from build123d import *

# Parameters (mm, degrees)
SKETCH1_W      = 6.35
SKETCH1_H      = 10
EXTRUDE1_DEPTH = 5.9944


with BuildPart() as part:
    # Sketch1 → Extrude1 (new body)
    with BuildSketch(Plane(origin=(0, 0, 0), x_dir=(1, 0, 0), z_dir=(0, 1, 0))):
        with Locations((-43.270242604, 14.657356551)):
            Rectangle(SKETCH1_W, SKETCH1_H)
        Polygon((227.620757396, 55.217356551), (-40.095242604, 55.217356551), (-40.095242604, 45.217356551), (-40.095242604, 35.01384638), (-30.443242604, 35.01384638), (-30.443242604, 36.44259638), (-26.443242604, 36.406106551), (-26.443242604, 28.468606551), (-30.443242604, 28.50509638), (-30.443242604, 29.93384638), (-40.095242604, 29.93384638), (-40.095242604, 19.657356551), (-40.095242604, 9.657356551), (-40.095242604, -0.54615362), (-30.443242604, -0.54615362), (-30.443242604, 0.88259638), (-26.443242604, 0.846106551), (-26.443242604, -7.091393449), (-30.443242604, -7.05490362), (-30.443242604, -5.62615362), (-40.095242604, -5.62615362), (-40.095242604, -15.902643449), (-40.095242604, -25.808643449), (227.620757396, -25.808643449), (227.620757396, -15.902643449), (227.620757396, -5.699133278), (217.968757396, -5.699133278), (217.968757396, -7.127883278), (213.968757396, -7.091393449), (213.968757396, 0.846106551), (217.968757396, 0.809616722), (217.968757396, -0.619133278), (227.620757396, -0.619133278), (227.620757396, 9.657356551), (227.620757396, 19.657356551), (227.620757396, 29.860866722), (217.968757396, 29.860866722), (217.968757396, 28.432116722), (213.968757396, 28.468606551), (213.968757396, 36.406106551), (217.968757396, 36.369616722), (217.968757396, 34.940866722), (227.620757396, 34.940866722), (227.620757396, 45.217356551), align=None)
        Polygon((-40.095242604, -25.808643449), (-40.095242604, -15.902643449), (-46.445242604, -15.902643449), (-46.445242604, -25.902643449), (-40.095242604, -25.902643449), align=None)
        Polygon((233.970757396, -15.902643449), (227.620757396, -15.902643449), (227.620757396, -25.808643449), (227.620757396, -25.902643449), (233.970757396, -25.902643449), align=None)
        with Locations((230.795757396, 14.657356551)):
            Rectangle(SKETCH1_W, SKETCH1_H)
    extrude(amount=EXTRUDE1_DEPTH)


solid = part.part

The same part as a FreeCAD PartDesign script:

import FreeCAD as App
import Part
import Sketcher

V = App.Vector
Q = App.Units.Quantity


def add_polygon(sketch, points):
    """Adds a closed chain of lines whose ends are joined by coincident constraints."""
    first, n = sketch.GeometryCount, len(points)
    for a, b in zip(points, points[1:] + points[:1]):
        sketch.addGeometry(Part.LineSegment(App.Vector(*a, 0), App.Vector(*b, 0)), False)
    for i in range(n):
        sketch.addConstraint(Sketcher.Constraint("Coincident", first + i, 2, first + (i + 1) % n, 1))

doc = App.newDocument("Part")
params = doc.addObject("Spreadsheet::Sheet", "Params")
for row, (alias, value) in enumerate([
    ("sketch1_width", "0.25 in"),
    ("sketch1_width2", "0.38 in"),
    ("sketch1_width3", "10.54 in"),
    ("sketch1_height", "0.3125 in"),
    ("pad1_length", "0.236 in"),
], start=1):
    params.set(f"A{row}", alias)
    params.set(f"B{row}", "=" + value)
    params.setAlias(f"B{row}", alias)

body = doc.addObject("PartDesign::Body", "Body")

sketch1 = doc.addObject("Sketcher::SketchObject", "Sketch")
body.addObject(sketch1)
sketch1.AttachmentSupport = (doc.XZ_Plane, [""])
sketch1.MapMode = "FlatFace"
add_polygon(sketch1, [(-46.45, -19.66), (-46.45, -9.66), (-40.1, -9.66), (-40.1, 0.55), (-30.44, 0.55), (-30.44, -0.88), (-26.44, -0.85), (-26.44, 7.09), (-30.44, 7.05), (-30.44, 5.63), (-40.1, 5.63), (-40.1, 15.9), (-46.45, 15.9), (-46.45, 25.9), (-40.1, 25.9), (-40.1, 25.81), (227.62, 25.81), (227.62, 25.9), (233.97, 25.9), (233.97, 15.9), (227.62, 15.9), (227.62, 5.7), (217.97, 5.7), (217.97, 7.13), (213.97, 7.09), (213.97, -0.85), (217.97, -0.81), (217.97, 0.62), (227.62, 0.62), (227.62, -9.66), (233.97, -9.66), (233.97, -19.66), (227.62, -19.66), (227.62, -29.86), (217.97, -29.86), (217.97, -28.43), (213.97, -28.47), (213.97, -36.41), (217.97, -36.37), (217.97, -34.94), (227.62, -34.94), (227.62, -55.22), (-40.1, -55.22), (-40.1, -35.01), (-30.44, -35.01), (-30.44, -36.44), (-26.44, -36.41), (-26.44, -28.47), (-30.44, -28.51), (-30.44, -29.93), (-40.1, -29.93), (-40.1, -19.66)])
sketch1.addConstraint(Sketcher.Constraint("Vertical", 0))
sketch1.addConstraint(Sketcher.Constraint("Horizontal", 1))
sketch1.addConstraint(Sketcher.Constraint("Vertical", 2))
sketch1.addConstraint(Sketcher.Constraint("Horizontal", 3))
sketch1.addConstraint(Sketcher.Constraint("Vertical", 4))
sketch1.addConstraint(Sketcher.Constraint("Vertical", 6))
sketch1.addConstraint(Sketcher.Constraint("Vertical", 8))
sketch1.addConstraint(Sketcher.Constraint("Horizontal", 9))
sketch1.addConstraint(Sketcher.Constraint("Vertical", 10))
sketch1.addConstraint(Sketcher.Constraint("Horizontal", 11))
sketch1.addConstraint(Sketcher.Constraint("Vertical", 12))
sketch1.addConstraint(Sketcher.Constraint("Horizontal", 13))
sketch1.addConstraint(Sketcher.Constraint("Vertical", 14))
sketch1.addConstraint(Sketcher.Constraint("Horizontal", 15))
sketch1.addConstraint(Sketcher.Constraint("Vertical", 16))
sketch1.addConstraint(Sketcher.Constraint("Horizontal", 17))
sketch1.addConstraint(Sketcher.Constraint("Vertical", 18))
sketch1.addConstraint(Sketcher.Constraint("Horizontal", 19))
sketch1.addConstraint(Sketcher.Constraint("Vertical", 20))
sketch1.addConstraint(Sketcher.Constraint("Horizontal", 21))
sketch1.addConstraint(Sketcher.Constraint("Vertical", 22))
sketch1.addConstraint(Sketcher.Constraint("Vertical", 24))
sketch1.addConstraint(Sketcher.Constraint("Vertical", 26))
sketch1.addConstraint(Sketcher.Constraint("Horizontal", 27))
sketch1.addConstraint(Sketcher.Constraint("Vertical", 28))
sketch1.addConstraint(Sketcher.Constraint("Horizontal", 29))
sketch1.addConstraint(Sketcher.Constraint("Vertical", 30))
sketch1.addConstraint(Sketcher.Constraint("Horizontal", 31))
sketch1.addConstraint(Sketcher.Constraint("Vertical", 32))
sketch1.addConstraint(Sketcher.Constraint("Horizontal", 33))
sketch1.addConstraint(Sketcher.Constraint("Vertical", 34))
sketch1.addConstraint(Sketcher.Constraint("Vertical", 36))
sketch1.addConstraint(Sketcher.Constraint("Vertical", 38))
sketch1.addConstraint(Sketcher.Constraint("Horizontal", 39))
sketch1.addConstraint(Sketcher.Constraint("Vertical", 40))
sketch1.addConstraint(Sketcher.Constraint("Horizontal", 41))
sketch1.addConstraint(Sketcher.Constraint("Vertical", 42))
sketch1.addConstraint(Sketcher.Constraint("Horizontal", 43))
sketch1.addConstraint(Sketcher.Constraint("Vertical", 44))
sketch1.addConstraint(Sketcher.Constraint("Vertical", 46))
sketch1.addConstraint(Sketcher.Constraint("Vertical", 48))
sketch1.addConstraint(Sketcher.Constraint("Horizontal", 49))
sketch1.addConstraint(Sketcher.Constraint("Vertical", 50))
sketch1.addConstraint(Sketcher.Constraint("Horizontal", 51))
sketch1.addConstraint(Sketcher.Constraint("Parallel", 5, 7))
sketch1.addConstraint(Sketcher.Constraint("Parallel", 7, 23))
sketch1.addConstraint(Sketcher.Constraint("Parallel", 23, 25))
sketch1.addConstraint(Sketcher.Constraint("Parallel", 25, 35))
sketch1.addConstraint(Sketcher.Constraint("Parallel", 35, 37))
sketch1.addConstraint(Sketcher.Constraint("Parallel", 37, 45))
sketch1.addConstraint(Sketcher.Constraint("Parallel", 45, 47))
sketch1.addConstraint(Sketcher.Constraint("Horizontal", 13, 2, 16, 2))
sketch1.addConstraint(Sketcher.Constraint("Horizontal", 11, 2, 18, 2))
sketch1.addConstraint(Sketcher.Constraint("Horizontal", 6, 2, 23, 2))
sketch1.addConstraint(Sketcher.Constraint("Horizontal", 5, 2, 24, 2))
sketch1.addConstraint(Sketcher.Constraint("Horizontal", 1, 2, 28, 2))
sketch1.addConstraint(Sketcher.Constraint("Horizontal", 36, 2, 45, 2))
sketch1.addConstraint(Sketcher.Constraint("Horizontal", 35, 2, 46, 2))
sketch1.addConstraint(Sketcher.Constraint("Horizontal", 31, 2, 50, 2))
sketch1.addConstraint(Sketcher.Constraint("Vertical", 4, 2, 7, 2))
sketch1.addConstraint(Sketcher.Constraint("Vertical", 2, 2, 9, 2))
sketch1.addConstraint(Sketcher.Constraint("Vertical", 0, 2, 11, 2))
sketch1.addConstraint(Sketcher.Constraint("Vertical", 10, 2, 13, 2))
sketch1.addConstraint(Sketcher.Constraint("Vertical", 16, 2, 19, 2))
sketch1.addConstraint(Sketcher.Constraint("Vertical", 22, 2, 25, 2))
sketch1.addConstraint(Sketcher.Constraint("Vertical", 20, 2, 27, 2))
sketch1.addConstraint(Sketcher.Constraint("Vertical", 18, 2, 29, 2))
sketch1.addConstraint(Sketcher.Constraint("Vertical", 28, 2, 31, 2))
sketch1.addConstraint(Sketcher.Constraint("Vertical", 26, 2, 33, 2))
sketch1.addConstraint(Sketcher.Constraint("Vertical", 24, 2, 35, 2))
sketch1.addConstraint(Sketcher.Constraint("Vertical", 34, 2, 37, 2))
sketch1.addConstraint(Sketcher.Constraint("Vertical", 32, 2, 39, 2))
sketch1.addConstraint(Sketcher.Constraint("Vertical", 14, 2, 41, 2))
sketch1.addConstraint(Sketcher.Constraint("Vertical", 8, 2, 43, 2))
sketch1.addConstraint(Sketcher.Constraint("Vertical", 6, 2, 45, 2))
sketch1.addConstraint(Sketcher.Constraint("Vertical", 44, 2, 47, 2))
sketch1.addConstraint(Sketcher.Constraint("Vertical", 42, 2, 49, 2))
sketch1.addConstraint(Sketcher.Constraint("Equal", 13, 17))
sketch1.addConstraint(Sketcher.Constraint("Equal", 9, 21))
sketch1.addConstraint(Sketcher.Constraint("Equal", 4, 8))
sketch1.addConstraint(Sketcher.Constraint("Equal", 0, 12))
sketch1.addConstraint(Sketcher.Constraint("Equal", 2, 20))
sketch1.addConstraint(Sketcher.Constraint("Equal", 8, 22))
sketch1.addConstraint(Sketcher.Constraint("Equal", 22, 26))
sketch1.addConstraint(Sketcher.Constraint("Equal", 20, 32))
sketch1.addConstraint(Sketcher.Constraint("Equal", 26, 34))
sketch1.addConstraint(Sketcher.Constraint("Equal", 24, 36))
sketch1.addConstraint(Sketcher.Constraint("Equal", 34, 38))
sketch1.addConstraint(Sketcher.Constraint("Equal", 38, 44))
sketch1.addConstraint(Sketcher.Constraint("Equal", 44, 48))
sketch1.addConstraint(Sketcher.Constraint("Equal", 7, 23))
sketch1.addConstraint(Sketcher.Constraint("DistanceX", 1, 1, 1, 2, Q("0.25 in")))
sketch1.addConstraint(Sketcher.Constraint("DistanceX", 3, 1, 3, 2, Q("0.38 in")))
sketch1.addConstraint(Sketcher.Constraint("DistanceX", 15, 1, 15, 2, Q("10.54 in")))
sketch1.addConstraint(Sketcher.Constraint("DistanceY", 3, 2, 8, 2, Q("0.2 in")))
sketch1.addConstraint(Sketcher.Constraint("DistanceY", 32, 2, 27, 2, Q("1.2 in")))
sketch1.addConstraint(Sketcher.Constraint("DistanceY", 6, 1, 6, 2, Q("0.3125 in")))
sketch1.addConstraint(Sketcher.Constraint("DistanceY", 10, 2, 14, 2, Q("0.39 in")))
sketch1.addConstraint(Sketcher.Constraint("DistanceY", 0, 1, 0, 2, 10.0))
sketch1.addConstraint(Sketcher.Constraint("DistanceY", 2, 1, 2, 2, 10.20351))
sketch1.addConstraint(Sketcher.Constraint("DistanceY", 40, 2, 40, 1, 20.27649))
sketch1.addConstraint(Sketcher.Constraint("DistanceX", 4, 2, 5, 2, 4.0))
sketch1.addConstraint(Sketcher.Constraint("DistanceX", 0, 2, -1, 1, 46.445243))
sketch1.addConstraint(Sketcher.Constraint("DistanceY", 0, 2, -1, 1, 9.657357))
sketch1.setExpression("Constraints[143]", "Params.sketch1_width")
sketch1.setExpression("Constraints[144]", "Params.sketch1_width2")
sketch1.setExpression("Constraints[145]", "Params.sketch1_width3")
sketch1.setExpression("Constraints[148]", "Params.sketch1_height")
pad1 = doc.addObject("PartDesign::Pad", "Pad")
body.addObject(pad1)
pad1.Profile = sketch1
pad1.setExpression("Length", "Params.pad1_length")
pad1.Reversed = True

doc.recompute()
